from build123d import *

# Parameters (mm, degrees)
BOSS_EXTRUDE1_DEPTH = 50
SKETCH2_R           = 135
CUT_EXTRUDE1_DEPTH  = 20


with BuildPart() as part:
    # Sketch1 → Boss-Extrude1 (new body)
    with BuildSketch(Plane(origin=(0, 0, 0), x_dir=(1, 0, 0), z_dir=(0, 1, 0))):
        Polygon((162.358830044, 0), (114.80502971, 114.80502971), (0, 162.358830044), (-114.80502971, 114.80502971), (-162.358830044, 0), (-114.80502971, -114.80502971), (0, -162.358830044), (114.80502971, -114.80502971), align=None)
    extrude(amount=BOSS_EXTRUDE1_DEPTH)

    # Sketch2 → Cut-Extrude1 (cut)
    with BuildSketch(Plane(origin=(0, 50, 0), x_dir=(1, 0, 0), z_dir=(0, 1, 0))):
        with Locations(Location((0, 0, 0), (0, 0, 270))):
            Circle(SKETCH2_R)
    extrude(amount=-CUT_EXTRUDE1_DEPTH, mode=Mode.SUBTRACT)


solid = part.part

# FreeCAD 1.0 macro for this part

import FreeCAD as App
import Part
import Sketcher
from FreeCAD import Vector
Q = App.Units.Quantity


def add_polygon(sketch, points):
    """Adds a closed chain of lines whose ends are joined by coincident constraints."""
    first, n = sketch.GeometryCount, len(points)
    for a, b in zip(points, points[1:] + points[:1]):
        sketch.addGeometry(Part.LineSegment(App.Vector(*a, 0), App.Vector(*b, 0)), False)
    for i in range(n):
        sketch.addConstraint(Sketcher.Constraint("Coincident", first + i, 2, first + (i + 1) % n, 1))

doc = App.newDocument("Part")
params = doc.addObject("Spreadsheet::Sheet", "Params")
for row, (alias, value) in enumerate([
    ("pad1_length", "50 mm"),
    ("sketch2_diameter", "270 mm"),
    ("pocket1_length", "20 mm"),
], start=1):
    params.set(f"A{row}", alias)
    params.set(f"B{row}", "=" + value)
    params.setAlias(f"B{row}", alias)

body = doc.addObject("PartDesign::Body", "Body")

# Sketch on XZ plane
sketch1 = body.newObject("Sketcher::SketchObject", "Sketch")
sketch1.AttachmentSupport = (doc.getObject("XZ_Plane"), [""])
sketch1.MapMode = "FlatFace"
add_polygon(sketch1, [(162.35883, 0), (114.80503, -114.80503), (0, -162.35883), (-114.80503, -114.80503), (-162.35883, 0), (-114.80503, 114.80503), (0, 162.35883), (114.80503, 114.80503)])  # lines 0-7
sketch1.addConstraint([
    Sketcher.Constraint("Symmetric", 0, 2, 4, 2, -1, 1),
    Sketcher.Constraint("Symmetric", 1, 2, 5, 2, -1, 1),
    Sketcher.Constraint("Symmetric", 2, 2, 6, 2, -1, 1),
    Sketcher.Constraint("Symmetric", 3, 2, 7, 2, -1, 1),
    Sketcher.Constraint("Symmetric", 0, 2, 2, 2, -2),
    Sketcher.Constraint("PointOnObject", 1, 2, -2),
    Sketcher.Constraint("PointOnObject", 3, 2, -1),
    Sketcher.Constraint("Perpendicular", 0, 2),
    Sketcher.Constraint("Equal", 0, 1),
    Sketcher.Constraint("Angle", 0, Q("-112.5 deg")),
    Sketcher.Constraint("DistanceY", 1, 2, 0, 2, Q("47.5538 mm")),
])
pad1 = body.newObject("PartDesign::Pad", "Pad")
pad1.Profile = sketch1
pad1.setExpression("Length", "Params.pad1_length")
pad1.Reversed = True

# Sketch on XZ plane
sketch2 = body.newObject("Sketcher::SketchObject", "Sketch001")
sketch2.AttachmentSupport = (doc.getObject("XZ_Plane"), [""])
sketch2.MapMode = "FlatFace"
sketch2.AttachmentOffset = App.Placement(Vector(0, 0, -50), App.Rotation())
sketch2.addGeometry(Part.Circle(Vector(0, 0, 0), Vector(0, 0, 1), 135), False)
sketch2.addConstraint([
    Sketcher.Constraint("Coincident", 0, 3, -1, 1),
    Sketcher.Constraint("Diameter", 0, Q("270 mm")),
])
sketch2.setExpression("Constraints[1]", "Params.sketch2_diameter")
pocket1 = body.newObject("PartDesign::Pocket", "Pocket")
pocket1.Profile = sketch2
pocket1.setExpression("Length", "Params.pocket1_length")
pocket1.Reversed = True

doc.recompute()
